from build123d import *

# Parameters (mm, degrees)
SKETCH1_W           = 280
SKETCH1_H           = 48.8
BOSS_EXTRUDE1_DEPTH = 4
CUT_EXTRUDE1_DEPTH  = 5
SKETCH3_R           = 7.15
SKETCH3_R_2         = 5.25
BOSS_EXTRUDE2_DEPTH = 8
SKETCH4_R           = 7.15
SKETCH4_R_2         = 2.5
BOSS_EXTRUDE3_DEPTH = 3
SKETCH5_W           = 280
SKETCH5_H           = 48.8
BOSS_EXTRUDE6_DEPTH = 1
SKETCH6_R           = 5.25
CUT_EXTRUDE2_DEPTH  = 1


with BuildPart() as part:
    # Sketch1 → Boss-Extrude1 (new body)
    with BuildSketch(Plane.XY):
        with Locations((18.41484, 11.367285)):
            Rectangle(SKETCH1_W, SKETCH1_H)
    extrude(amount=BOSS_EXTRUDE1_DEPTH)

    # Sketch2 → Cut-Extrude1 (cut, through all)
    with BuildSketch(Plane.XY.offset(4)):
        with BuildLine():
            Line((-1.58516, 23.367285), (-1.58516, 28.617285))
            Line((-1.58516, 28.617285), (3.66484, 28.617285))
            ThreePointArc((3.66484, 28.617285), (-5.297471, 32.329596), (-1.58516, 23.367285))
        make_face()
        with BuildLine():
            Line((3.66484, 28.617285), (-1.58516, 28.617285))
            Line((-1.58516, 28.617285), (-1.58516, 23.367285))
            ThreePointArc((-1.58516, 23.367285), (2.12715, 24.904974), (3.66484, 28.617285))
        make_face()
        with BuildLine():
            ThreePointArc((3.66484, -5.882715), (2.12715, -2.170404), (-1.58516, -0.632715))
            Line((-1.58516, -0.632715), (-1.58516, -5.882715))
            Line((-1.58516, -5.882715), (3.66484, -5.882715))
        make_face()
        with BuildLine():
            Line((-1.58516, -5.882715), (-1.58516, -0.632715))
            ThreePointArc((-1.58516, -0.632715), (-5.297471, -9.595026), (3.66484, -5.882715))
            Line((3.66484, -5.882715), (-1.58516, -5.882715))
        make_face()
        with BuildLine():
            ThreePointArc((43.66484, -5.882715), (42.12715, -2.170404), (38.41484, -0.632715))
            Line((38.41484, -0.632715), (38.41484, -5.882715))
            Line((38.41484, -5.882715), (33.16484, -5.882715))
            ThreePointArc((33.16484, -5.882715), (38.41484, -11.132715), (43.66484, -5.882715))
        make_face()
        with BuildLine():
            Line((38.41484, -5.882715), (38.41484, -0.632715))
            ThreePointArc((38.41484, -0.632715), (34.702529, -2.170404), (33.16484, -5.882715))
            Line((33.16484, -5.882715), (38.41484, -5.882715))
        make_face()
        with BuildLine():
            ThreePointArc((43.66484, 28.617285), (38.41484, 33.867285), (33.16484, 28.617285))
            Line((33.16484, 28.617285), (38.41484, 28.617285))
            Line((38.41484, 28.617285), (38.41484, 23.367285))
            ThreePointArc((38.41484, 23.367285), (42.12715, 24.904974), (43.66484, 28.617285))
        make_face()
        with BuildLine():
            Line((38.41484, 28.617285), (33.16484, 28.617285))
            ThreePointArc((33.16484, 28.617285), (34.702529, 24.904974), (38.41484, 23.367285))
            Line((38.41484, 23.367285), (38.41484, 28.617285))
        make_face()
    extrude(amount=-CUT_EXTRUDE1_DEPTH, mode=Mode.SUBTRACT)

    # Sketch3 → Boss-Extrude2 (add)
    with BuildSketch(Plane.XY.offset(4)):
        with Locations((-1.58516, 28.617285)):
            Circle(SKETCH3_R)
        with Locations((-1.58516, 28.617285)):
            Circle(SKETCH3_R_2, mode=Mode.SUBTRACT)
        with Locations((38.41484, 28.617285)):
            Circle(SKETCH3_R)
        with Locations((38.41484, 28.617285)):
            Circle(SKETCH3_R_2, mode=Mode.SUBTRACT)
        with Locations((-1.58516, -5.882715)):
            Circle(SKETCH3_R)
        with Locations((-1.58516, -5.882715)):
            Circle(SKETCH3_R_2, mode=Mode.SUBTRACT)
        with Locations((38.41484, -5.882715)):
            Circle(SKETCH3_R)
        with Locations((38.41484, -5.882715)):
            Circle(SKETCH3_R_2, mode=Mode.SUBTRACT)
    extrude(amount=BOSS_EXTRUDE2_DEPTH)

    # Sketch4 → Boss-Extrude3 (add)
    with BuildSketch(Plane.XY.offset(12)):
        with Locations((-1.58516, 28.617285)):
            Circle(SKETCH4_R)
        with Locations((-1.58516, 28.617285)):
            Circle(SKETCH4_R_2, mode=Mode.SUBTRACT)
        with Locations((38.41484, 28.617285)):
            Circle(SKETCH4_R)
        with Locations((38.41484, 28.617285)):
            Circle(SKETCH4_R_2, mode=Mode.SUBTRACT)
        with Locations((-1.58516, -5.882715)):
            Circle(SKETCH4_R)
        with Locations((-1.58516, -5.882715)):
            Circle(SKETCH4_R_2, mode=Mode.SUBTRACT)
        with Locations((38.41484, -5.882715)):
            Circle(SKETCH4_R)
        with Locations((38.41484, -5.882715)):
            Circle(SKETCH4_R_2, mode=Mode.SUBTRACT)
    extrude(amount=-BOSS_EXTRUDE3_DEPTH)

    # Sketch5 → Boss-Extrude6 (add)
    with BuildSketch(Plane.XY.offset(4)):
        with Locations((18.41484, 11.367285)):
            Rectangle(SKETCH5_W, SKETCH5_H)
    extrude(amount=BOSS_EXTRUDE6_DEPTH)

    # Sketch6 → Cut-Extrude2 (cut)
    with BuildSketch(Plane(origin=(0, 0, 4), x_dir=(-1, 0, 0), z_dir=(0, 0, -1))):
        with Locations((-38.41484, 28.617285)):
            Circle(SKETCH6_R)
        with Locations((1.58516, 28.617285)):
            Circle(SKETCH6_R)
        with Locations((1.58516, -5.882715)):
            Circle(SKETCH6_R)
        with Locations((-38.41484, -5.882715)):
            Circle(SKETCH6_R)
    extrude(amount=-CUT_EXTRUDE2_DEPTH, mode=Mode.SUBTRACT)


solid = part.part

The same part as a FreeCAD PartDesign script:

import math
import FreeCAD as App
import Part
import Sketcher

doc = App.newDocument("Part")
body = doc.addObject("PartDesign::Body", "Body")

sketch1 = doc.addObject("Sketcher::SketchObject", "Sketch")
body.addObject(sketch1)
sketch1.AttachmentSupport = (doc.XY_Plane, [""])
sketch1.MapMode = "FlatFace"
sketch1.addGeometry([
    Part.LineSegment(App.Vector(-122, 36, 0), App.Vector(-122, -13, 0)),
    Part.LineSegment(App.Vector(-122, -13, 0), App.Vector(158, -13, 0)),
    Part.LineSegment(App.Vector(158, -13, 0), App.Vector(158, 36, 0)),
    Part.LineSegment(App.Vector(158, 36, 0), App.Vector(-122, 36, 0)),
], False)
sketch1.addConstraint([
    Sketcher.Constraint("Coincident", 0, 2, 1, 1),
    Sketcher.Constraint("Coincident", 1, 2, 2, 1),
    Sketcher.Constraint("Coincident", 2, 2, 3, 1),
    Sketcher.Constraint("Coincident", 3, 2, 0, 1),
    Sketcher.Constraint("Vertical", 0),
    Sketcher.Constraint("Horizontal", 1),
    Sketcher.Constraint("Vertical", 2),
    Sketcher.Constraint("Horizontal", 3),
    Sketcher.Constraint("DistanceX", 1, 1, 1, 2, 280.0),
    Sketcher.Constraint("DistanceY", 0, 2, 0, 1, 48.8),
    Sketcher.Constraint("DistanceX", 0, 2, -1, 1, 121.58516),
    Sketcher.Constraint("DistanceY", 0, 2, -1, 1, 13.032715),
])
pad1 = doc.addObject("PartDesign::Pad", "Pad")
body.addObject(pad1)
pad1.Profile = sketch1
pad1.Length = 4

sketch2 = doc.addObject("Sketcher::SketchObject", "Sketch001")
body.addObject(sketch2)
sketch2.AttachmentSupport = (doc.XY_Plane, [""])
sketch2.MapMode = "FlatFace"
sketch2.AttachmentOffset = App.Placement(App.Vector(0, 0, 4), App.Rotation())
sketch2.addGeometry([
    Part.ArcOfCircle(Part.Circle(App.Vector(-2, 29, 0), App.Vector(0, 0, 1), 5), math.radians(0), math.radians(270)),
    Part.ArcOfCircle(Part.Circle(App.Vector(-2, 29, 0), App.Vector(0, 0, 1), 5), math.radians(-90), math.radians(0)),
    Part.ArcOfCircle(Part.Circle(App.Vector(-2, -6, 0), App.Vector(0, 0, 1), 5), math.radians(0), math.radians(90)),
    Part.ArcOfCircle(Part.Circle(App.Vector(-2, -6, 0), App.Vector(0, 0, 1), 5), math.radians(90), math.radians(360)),
    Part.ArcOfCircle(Part.Circle(App.Vector(38, -6, 0), App.Vector(0, 0, 1), 5), math.radians(0), math.radians(90)),
    Part.ArcOfCircle(Part.Circle(App.Vector(38, -6, 0), App.Vector(0, 0, 1), 5), math.radians(90), math.radians(180)),
    Part.ArcOfCircle(Part.Circle(App.Vector(38, -6, 0), App.Vector(0, 0, 1), 5), math.radians(180), math.radians(360)),
    Part.ArcOfCircle(Part.Circle(App.Vector(38, 29, 0), App.Vector(0, 0, 1), 5), math.radians(0), math.radians(180)),
    Part.ArcOfCircle(Part.Circle(App.Vector(38, 29, 0), App.Vector(0, 0, 1), 5), math.radians(180), math.radians(270)),
    Part.ArcOfCircle(Part.Circle(App.Vector(38, 29, 0), App.Vector(0, 0, 1), 5), math.radians(-90), math.radians(0)),
], False)
sketch2.addConstraint([
    Sketcher.Constraint("Tangent", 0, 1, 1, 2),
    Sketcher.Constraint("Coincident", 1, 1, 0, 2),
    Sketcher.Constraint("Tangent", 2, 1, 3, 2),
    Sketcher.Constraint("Coincident", 3, 1, 2, 2),
    Sketcher.Constraint("Tangent", 4, 2, 5, 1),
    Sketcher.Constraint("Tangent", 5, 2, 6, 1),
    Sketcher.Constraint("Tangent", 6, 2, 4, 1),
    Sketcher.Constraint("Tangent", 7, 2, 8, 1),
    Sketcher.Constraint("Tangent", 8, 2, 9, 1),
    Sketcher.Constraint("Tangent", 9, 2, 7, 1),
    Sketcher.Constraint("Equal", 1, 2),
    Sketcher.Constraint("Equal", 3, 4),
    Sketcher.Constraint("Equal", 6, 7),
    Sketcher.Constraint("Horizontal", 3, 3, 4, 3),
    Sketcher.Constraint("Horizontal", 1, 3, 7, 3),
    Sketcher.Constraint("Horizontal", 9, 3, 0, 1),
    Sketcher.Constraint("Horizontal", 6, 3, 2, 1),
    Sketcher.Constraint("Horizontal", 2, 1, 5, 2),
    Sketcher.Constraint("Horizontal", 5, 2, 6, 2),
    Sketcher.Constraint("Horizontal", 0, 1, 7, 2),
    Sketcher.Constraint("Horizontal", 7, 2, 9, 2),
    Sketcher.Constraint("Vertical", 1, 3, 2, 3),
    Sketcher.Constraint("Vertical", 6, 3, 7, 3),
    Sketcher.Constraint("Vertical", 3, 3, 1, 1),
    Sketcher.Constraint("Vertical", 1, 1, 3, 1),
    Sketcher.Constraint("Vertical", 9, 3, 4, 2),
    Sketcher.Constraint("Vertical", 4, 2, 8, 2),
    Sketcher.Constraint("Radius", 0, 5.25),
    Sketcher.Constraint("DistanceX", 3, 3, 4, 3, 40.0),
    Sketcher.Constraint("DistanceY", 3, 1, 1, 1, 24.0),
    Sketcher.Constraint("DistanceX", 0, 3, -1, 1, 1.58516),
    Sketcher.Constraint("DistanceY", -1, 1, 0, 3, 28.617285),
])
pocket1 = doc.addObject("PartDesign::Pocket", "Pocket")
body.addObject(pocket1)
pocket1.Profile = sketch2
pocket1.Type = "ThroughAll"

sketch3 = doc.addObject("Sketcher::SketchObject", "Sketch002")
body.addObject(sketch3)
sketch3.AttachmentSupport = (doc.XY_Plane, [""])
sketch3.MapMode = "FlatFace"
sketch3.AttachmentOffset = App.Placement(App.Vector(0, 0, 4), App.Rotation())
sketch3.addGeometry([
    Part.Circle(App.Vector(-2, 29, 0), App.Vector(0, 0, 1), 7),
    Part.Circle(App.Vector(-2, 29, 0), App.Vector(0, 0, 1), 5),
    Part.Circle(App.Vector(38, 29, 0), App.Vector(0, 0, 1), 7),
    Part.Circle(App.Vector(38, 29, 0), App.Vector(0, 0, 1), 5),
    Part.Circle(App.Vector(-2, -6, 0), App.Vector(0, 0, 1), 7),
    Part.Circle(App.Vector(-2, -6, 0), App.Vector(0, 0, 1), 5),
    Part.Circle(App.Vector(38, -6, 0), App.Vector(0, 0, 1), 7),
    Part.Circle(App.Vector(38, -6, 0), App.Vector(0, 0, 1), 5),
], False)
sketch3.addConstraint([
    Sketcher.Constraint("Coincident", 1, 3, 0, 3),
    Sketcher.Constraint("Coincident", 3, 3, 2, 3),
    Sketcher.Constraint("Coincident", 5, 3, 4, 3),
    Sketcher.Constraint("Coincident", 7, 3, 6, 3),
    Sketcher.Constraint("Equal", 0, 2),
    Sketcher.Constraint("Equal", 1, 3),
    Sketcher.Constraint("Equal", 2, 4),
    Sketcher.Constraint("Equal", 3, 5),
    Sketcher.Constraint("Equal", 4, 6),
    Sketcher.Constraint("Equal", 5, 7),
    Sketcher.Constraint("Horizontal", 1, 3, 2, 3),
    Sketcher.Constraint("Horizontal", 5, 3, 6, 3),
    Sketcher.Constraint("Vertical", 1, 3, 4, 3),
    Sketcher.Constraint("Vertical", 3, 3, 6, 3),
    Sketcher.Constraint("Diameter", 0, 14.3),
    Sketcher.Constraint("Diameter", 1, 10.5),
    Sketcher.Constraint("DistanceX", 0, 3, 2, 3, 40.0),
    Sketcher.Constraint("DistanceY", 4, 3, 0, 3, 34.5),
    Sketcher.Constraint("DistanceX", 0, 3, -1, 1, 1.58516),
    Sketcher.Constraint("DistanceY", -1, 1, 0, 3, 28.617285),
])
pad2 = doc.addObject("PartDesign::Pad", "Pad001")
body.addObject(pad2)
pad2.Profile = sketch3
pad2.Length = 8

sketch4 = doc.addObject("Sketcher::SketchObject", "Sketch003")
body.addObject(sketch4)
sketch4.AttachmentSupport = (doc.XY_Plane, [""])
sketch4.MapMode = "FlatFace"
sketch4.AttachmentOffset = App.Placement(App.Vector(0, 0, 12), App.Rotation())
sketch4.addGeometry([
    Part.Circle(App.Vector(-1.6, 28.6, 0), App.Vector(0, 0, 1), 7.2),
    Part.Circle(App.Vector(-1.6, 28.6, 0), App.Vector(0, 0, 1), 2.5),
    Part.Circle(App.Vector(38.4, 28.6, 0), App.Vector(0, 0, 1), 7.2),
    Part.Circle(App.Vector(38.4, 28.6, 0), App.Vector(0, 0, 1), 2.5),
    Part.Circle(App.Vector(-1.6, -5.9, 0), App.Vector(0, 0, 1), 7.2),
    Part.Circle(App.Vector(-1.6, -5.9, 0), App.Vector(0, 0, 1), 2.5),
    Part.Circle(App.Vector(38.4, -5.9, 0), App.Vector(0, 0, 1), 7.2),
    Part.Circle(App.Vector(38.4, -5.9, 0), App.Vector(0, 0, 1), 2.5),
], False)
sketch4.addConstraint([
    Sketcher.Constraint("Coincident", 1, 3, 0, 3),
    Sketcher.Constraint("Coincident", 3, 3, 2, 3),
    Sketcher.Constraint("Coincident", 5, 3, 4, 3),
    Sketcher.Constraint("Coincident", 7, 3, 6, 3),
    Sketcher.Constraint("Equal", 0, 2),
    Sketcher.Constraint("Equal", 1, 3),
    Sketcher.Constraint("Equal", 2, 4),
    Sketcher.Constraint("Equal", 3, 5),
    Sketcher.Constraint("Equal", 4, 6),
    Sketcher.Constraint("Equal", 5, 7),
    Sketcher.Constraint("Horizontal", 1, 3, 2, 3),
    Sketcher.Constraint("Horizontal", 5, 3, 6, 3),
    Sketcher.Constraint("Vertical", 1, 3, 4, 3),
    Sketcher.Constraint("Vertical", 3, 3, 6, 3),
    Sketcher.Constraint("Diameter", 1, 5.0),
    Sketcher.Constraint("Diameter", 0, 14.3),
    Sketcher.Constraint("DistanceX", 0, 3, 2, 3, 40.0),
    Sketcher.Constraint("DistanceY", 4, 3, 0, 3, 34.5),
    Sketcher.Constraint("DistanceX", 0, 3, -1, 1, 1.58516),
    Sketcher.Constraint("DistanceY", -1, 1, 0, 3, 28.617285),
])
pad3 = doc.addObject("PartDesign::Pad", "Pad002")
body.addObject(pad3)
pad3.Profile = sketch4
pad3.Length = 3
pad3.Reversed = True

sketch5 = doc.addObject("Sketcher::SketchObject", "Sketch004")
body.addObject(sketch5)
sketch5.AttachmentSupport = (doc.XY_Plane, [""])
sketch5.MapMode = "FlatFace"
sketch5.AttachmentOffset = App.Placement(App.Vector(0, 0, 4), App.Rotation())
sketch5.addGeometry([
    Part.LineSegment(App.Vector(-122, 36, 0), App.Vector(-122, -13, 0)),
    Part.LineSegment(App.Vector(-122, -13, 0), App.Vector(158, -13, 0)),
    Part.LineSegment(App.Vector(158, -13, 0), App.Vector(158, 36, 0)),
    Part.LineSegment(App.Vector(158, 36, 0), App.Vector(-122, 36, 0)),
], False)
sketch5.addConstraint([
    Sketcher.Constraint("Coincident", 0, 2, 1, 1),
    Sketcher.Constraint("Coincident", 1, 2, 2, 1),
    Sketcher.Constraint("Coincident", 2, 2, 3, 1),
    Sketcher.Constraint("Coincident", 3, 2, 0, 1),
    Sketcher.Constraint("Vertical", 0),
    Sketcher.Constraint("Horizontal", 1),
    Sketcher.Constraint("Vertical", 2),
    Sketcher.Constraint("Horizontal", 3),
    Sketcher.Constraint("DistanceX", 1, 1, 1, 2, 280.0),
    Sketcher.Constraint("DistanceY", 0, 2, 0, 1, 48.8),
    Sketcher.Constraint("DistanceX", 0, 2, -1, 1, 121.58516),
    Sketcher.Constraint("DistanceY", 0, 2, -1, 1, 13.032715),
])
pad4 = doc.addObject("PartDesign::Pad", "Pad003")
body.addObject(pad4)
pad4.Profile = sketch5
pad4.Length = 1

sketch6 = doc.addObject("Sketcher::SketchObject", "Sketch005")
body.addObject(sketch6)
sketch6.AttachmentSupport = (doc.XY_Plane, [""])
sketch6.MapMode = "FlatFace"
sketch6.AttachmentOffset = App.Placement(App.Vector(0, 0, 4), App.Rotation())
sketch6.addGeometry([
    Part.Circle(App.Vector(38, 29, 0), App.Vector(0, 0, 1), 5),
    Part.Circle(App.Vector(-2, 29, 0), App.Vector(0, 0, 1), 5),
    Part.Circle(App.Vector(-2, -6, 0), App.Vector(0, 0, 1), 5),
    Part.Circle(App.Vector(38, -6, 0), App.Vector(0, 0, 1), 5),
], False)
sketch6.addConstraint([
    Sketcher.Constraint("Equal", 0, 1),
    Sketcher.Constraint("Equal", 1, 2),
    Sketcher.Constraint("Equal", 2, 3),
    Sketcher.Constraint("Horizontal", 0, 3, 1, 3),
    Sketcher.Constraint("Horizontal", 2, 3, 3, 3),
    Sketcher.Constraint("Vertical", 1, 3, 2, 3),
    Sketcher.Constraint("Vertical", 0, 3, 3, 3),
    Sketcher.Constraint("Diameter", 0, 10.5),
    Sketcher.Constraint("DistanceX", 1, 3, 0, 3, 40.0),
    Sketcher.Constraint("DistanceY", 2, 3, 1, 3, 34.5),
    Sketcher.Constraint("DistanceX", -1, 1, 0, 3, 38.41484),
    Sketcher.Constraint("DistanceY", -1, 1, 0, 3, 28.617285),
])
pocket2 = doc.addObject("PartDesign::Pocket", "Pocket001")
body.addObject(pocket2)
pocket2.Profile = sketch6
pocket2.Length = 1
pocket2.Reversed = True

doc.recompute()
